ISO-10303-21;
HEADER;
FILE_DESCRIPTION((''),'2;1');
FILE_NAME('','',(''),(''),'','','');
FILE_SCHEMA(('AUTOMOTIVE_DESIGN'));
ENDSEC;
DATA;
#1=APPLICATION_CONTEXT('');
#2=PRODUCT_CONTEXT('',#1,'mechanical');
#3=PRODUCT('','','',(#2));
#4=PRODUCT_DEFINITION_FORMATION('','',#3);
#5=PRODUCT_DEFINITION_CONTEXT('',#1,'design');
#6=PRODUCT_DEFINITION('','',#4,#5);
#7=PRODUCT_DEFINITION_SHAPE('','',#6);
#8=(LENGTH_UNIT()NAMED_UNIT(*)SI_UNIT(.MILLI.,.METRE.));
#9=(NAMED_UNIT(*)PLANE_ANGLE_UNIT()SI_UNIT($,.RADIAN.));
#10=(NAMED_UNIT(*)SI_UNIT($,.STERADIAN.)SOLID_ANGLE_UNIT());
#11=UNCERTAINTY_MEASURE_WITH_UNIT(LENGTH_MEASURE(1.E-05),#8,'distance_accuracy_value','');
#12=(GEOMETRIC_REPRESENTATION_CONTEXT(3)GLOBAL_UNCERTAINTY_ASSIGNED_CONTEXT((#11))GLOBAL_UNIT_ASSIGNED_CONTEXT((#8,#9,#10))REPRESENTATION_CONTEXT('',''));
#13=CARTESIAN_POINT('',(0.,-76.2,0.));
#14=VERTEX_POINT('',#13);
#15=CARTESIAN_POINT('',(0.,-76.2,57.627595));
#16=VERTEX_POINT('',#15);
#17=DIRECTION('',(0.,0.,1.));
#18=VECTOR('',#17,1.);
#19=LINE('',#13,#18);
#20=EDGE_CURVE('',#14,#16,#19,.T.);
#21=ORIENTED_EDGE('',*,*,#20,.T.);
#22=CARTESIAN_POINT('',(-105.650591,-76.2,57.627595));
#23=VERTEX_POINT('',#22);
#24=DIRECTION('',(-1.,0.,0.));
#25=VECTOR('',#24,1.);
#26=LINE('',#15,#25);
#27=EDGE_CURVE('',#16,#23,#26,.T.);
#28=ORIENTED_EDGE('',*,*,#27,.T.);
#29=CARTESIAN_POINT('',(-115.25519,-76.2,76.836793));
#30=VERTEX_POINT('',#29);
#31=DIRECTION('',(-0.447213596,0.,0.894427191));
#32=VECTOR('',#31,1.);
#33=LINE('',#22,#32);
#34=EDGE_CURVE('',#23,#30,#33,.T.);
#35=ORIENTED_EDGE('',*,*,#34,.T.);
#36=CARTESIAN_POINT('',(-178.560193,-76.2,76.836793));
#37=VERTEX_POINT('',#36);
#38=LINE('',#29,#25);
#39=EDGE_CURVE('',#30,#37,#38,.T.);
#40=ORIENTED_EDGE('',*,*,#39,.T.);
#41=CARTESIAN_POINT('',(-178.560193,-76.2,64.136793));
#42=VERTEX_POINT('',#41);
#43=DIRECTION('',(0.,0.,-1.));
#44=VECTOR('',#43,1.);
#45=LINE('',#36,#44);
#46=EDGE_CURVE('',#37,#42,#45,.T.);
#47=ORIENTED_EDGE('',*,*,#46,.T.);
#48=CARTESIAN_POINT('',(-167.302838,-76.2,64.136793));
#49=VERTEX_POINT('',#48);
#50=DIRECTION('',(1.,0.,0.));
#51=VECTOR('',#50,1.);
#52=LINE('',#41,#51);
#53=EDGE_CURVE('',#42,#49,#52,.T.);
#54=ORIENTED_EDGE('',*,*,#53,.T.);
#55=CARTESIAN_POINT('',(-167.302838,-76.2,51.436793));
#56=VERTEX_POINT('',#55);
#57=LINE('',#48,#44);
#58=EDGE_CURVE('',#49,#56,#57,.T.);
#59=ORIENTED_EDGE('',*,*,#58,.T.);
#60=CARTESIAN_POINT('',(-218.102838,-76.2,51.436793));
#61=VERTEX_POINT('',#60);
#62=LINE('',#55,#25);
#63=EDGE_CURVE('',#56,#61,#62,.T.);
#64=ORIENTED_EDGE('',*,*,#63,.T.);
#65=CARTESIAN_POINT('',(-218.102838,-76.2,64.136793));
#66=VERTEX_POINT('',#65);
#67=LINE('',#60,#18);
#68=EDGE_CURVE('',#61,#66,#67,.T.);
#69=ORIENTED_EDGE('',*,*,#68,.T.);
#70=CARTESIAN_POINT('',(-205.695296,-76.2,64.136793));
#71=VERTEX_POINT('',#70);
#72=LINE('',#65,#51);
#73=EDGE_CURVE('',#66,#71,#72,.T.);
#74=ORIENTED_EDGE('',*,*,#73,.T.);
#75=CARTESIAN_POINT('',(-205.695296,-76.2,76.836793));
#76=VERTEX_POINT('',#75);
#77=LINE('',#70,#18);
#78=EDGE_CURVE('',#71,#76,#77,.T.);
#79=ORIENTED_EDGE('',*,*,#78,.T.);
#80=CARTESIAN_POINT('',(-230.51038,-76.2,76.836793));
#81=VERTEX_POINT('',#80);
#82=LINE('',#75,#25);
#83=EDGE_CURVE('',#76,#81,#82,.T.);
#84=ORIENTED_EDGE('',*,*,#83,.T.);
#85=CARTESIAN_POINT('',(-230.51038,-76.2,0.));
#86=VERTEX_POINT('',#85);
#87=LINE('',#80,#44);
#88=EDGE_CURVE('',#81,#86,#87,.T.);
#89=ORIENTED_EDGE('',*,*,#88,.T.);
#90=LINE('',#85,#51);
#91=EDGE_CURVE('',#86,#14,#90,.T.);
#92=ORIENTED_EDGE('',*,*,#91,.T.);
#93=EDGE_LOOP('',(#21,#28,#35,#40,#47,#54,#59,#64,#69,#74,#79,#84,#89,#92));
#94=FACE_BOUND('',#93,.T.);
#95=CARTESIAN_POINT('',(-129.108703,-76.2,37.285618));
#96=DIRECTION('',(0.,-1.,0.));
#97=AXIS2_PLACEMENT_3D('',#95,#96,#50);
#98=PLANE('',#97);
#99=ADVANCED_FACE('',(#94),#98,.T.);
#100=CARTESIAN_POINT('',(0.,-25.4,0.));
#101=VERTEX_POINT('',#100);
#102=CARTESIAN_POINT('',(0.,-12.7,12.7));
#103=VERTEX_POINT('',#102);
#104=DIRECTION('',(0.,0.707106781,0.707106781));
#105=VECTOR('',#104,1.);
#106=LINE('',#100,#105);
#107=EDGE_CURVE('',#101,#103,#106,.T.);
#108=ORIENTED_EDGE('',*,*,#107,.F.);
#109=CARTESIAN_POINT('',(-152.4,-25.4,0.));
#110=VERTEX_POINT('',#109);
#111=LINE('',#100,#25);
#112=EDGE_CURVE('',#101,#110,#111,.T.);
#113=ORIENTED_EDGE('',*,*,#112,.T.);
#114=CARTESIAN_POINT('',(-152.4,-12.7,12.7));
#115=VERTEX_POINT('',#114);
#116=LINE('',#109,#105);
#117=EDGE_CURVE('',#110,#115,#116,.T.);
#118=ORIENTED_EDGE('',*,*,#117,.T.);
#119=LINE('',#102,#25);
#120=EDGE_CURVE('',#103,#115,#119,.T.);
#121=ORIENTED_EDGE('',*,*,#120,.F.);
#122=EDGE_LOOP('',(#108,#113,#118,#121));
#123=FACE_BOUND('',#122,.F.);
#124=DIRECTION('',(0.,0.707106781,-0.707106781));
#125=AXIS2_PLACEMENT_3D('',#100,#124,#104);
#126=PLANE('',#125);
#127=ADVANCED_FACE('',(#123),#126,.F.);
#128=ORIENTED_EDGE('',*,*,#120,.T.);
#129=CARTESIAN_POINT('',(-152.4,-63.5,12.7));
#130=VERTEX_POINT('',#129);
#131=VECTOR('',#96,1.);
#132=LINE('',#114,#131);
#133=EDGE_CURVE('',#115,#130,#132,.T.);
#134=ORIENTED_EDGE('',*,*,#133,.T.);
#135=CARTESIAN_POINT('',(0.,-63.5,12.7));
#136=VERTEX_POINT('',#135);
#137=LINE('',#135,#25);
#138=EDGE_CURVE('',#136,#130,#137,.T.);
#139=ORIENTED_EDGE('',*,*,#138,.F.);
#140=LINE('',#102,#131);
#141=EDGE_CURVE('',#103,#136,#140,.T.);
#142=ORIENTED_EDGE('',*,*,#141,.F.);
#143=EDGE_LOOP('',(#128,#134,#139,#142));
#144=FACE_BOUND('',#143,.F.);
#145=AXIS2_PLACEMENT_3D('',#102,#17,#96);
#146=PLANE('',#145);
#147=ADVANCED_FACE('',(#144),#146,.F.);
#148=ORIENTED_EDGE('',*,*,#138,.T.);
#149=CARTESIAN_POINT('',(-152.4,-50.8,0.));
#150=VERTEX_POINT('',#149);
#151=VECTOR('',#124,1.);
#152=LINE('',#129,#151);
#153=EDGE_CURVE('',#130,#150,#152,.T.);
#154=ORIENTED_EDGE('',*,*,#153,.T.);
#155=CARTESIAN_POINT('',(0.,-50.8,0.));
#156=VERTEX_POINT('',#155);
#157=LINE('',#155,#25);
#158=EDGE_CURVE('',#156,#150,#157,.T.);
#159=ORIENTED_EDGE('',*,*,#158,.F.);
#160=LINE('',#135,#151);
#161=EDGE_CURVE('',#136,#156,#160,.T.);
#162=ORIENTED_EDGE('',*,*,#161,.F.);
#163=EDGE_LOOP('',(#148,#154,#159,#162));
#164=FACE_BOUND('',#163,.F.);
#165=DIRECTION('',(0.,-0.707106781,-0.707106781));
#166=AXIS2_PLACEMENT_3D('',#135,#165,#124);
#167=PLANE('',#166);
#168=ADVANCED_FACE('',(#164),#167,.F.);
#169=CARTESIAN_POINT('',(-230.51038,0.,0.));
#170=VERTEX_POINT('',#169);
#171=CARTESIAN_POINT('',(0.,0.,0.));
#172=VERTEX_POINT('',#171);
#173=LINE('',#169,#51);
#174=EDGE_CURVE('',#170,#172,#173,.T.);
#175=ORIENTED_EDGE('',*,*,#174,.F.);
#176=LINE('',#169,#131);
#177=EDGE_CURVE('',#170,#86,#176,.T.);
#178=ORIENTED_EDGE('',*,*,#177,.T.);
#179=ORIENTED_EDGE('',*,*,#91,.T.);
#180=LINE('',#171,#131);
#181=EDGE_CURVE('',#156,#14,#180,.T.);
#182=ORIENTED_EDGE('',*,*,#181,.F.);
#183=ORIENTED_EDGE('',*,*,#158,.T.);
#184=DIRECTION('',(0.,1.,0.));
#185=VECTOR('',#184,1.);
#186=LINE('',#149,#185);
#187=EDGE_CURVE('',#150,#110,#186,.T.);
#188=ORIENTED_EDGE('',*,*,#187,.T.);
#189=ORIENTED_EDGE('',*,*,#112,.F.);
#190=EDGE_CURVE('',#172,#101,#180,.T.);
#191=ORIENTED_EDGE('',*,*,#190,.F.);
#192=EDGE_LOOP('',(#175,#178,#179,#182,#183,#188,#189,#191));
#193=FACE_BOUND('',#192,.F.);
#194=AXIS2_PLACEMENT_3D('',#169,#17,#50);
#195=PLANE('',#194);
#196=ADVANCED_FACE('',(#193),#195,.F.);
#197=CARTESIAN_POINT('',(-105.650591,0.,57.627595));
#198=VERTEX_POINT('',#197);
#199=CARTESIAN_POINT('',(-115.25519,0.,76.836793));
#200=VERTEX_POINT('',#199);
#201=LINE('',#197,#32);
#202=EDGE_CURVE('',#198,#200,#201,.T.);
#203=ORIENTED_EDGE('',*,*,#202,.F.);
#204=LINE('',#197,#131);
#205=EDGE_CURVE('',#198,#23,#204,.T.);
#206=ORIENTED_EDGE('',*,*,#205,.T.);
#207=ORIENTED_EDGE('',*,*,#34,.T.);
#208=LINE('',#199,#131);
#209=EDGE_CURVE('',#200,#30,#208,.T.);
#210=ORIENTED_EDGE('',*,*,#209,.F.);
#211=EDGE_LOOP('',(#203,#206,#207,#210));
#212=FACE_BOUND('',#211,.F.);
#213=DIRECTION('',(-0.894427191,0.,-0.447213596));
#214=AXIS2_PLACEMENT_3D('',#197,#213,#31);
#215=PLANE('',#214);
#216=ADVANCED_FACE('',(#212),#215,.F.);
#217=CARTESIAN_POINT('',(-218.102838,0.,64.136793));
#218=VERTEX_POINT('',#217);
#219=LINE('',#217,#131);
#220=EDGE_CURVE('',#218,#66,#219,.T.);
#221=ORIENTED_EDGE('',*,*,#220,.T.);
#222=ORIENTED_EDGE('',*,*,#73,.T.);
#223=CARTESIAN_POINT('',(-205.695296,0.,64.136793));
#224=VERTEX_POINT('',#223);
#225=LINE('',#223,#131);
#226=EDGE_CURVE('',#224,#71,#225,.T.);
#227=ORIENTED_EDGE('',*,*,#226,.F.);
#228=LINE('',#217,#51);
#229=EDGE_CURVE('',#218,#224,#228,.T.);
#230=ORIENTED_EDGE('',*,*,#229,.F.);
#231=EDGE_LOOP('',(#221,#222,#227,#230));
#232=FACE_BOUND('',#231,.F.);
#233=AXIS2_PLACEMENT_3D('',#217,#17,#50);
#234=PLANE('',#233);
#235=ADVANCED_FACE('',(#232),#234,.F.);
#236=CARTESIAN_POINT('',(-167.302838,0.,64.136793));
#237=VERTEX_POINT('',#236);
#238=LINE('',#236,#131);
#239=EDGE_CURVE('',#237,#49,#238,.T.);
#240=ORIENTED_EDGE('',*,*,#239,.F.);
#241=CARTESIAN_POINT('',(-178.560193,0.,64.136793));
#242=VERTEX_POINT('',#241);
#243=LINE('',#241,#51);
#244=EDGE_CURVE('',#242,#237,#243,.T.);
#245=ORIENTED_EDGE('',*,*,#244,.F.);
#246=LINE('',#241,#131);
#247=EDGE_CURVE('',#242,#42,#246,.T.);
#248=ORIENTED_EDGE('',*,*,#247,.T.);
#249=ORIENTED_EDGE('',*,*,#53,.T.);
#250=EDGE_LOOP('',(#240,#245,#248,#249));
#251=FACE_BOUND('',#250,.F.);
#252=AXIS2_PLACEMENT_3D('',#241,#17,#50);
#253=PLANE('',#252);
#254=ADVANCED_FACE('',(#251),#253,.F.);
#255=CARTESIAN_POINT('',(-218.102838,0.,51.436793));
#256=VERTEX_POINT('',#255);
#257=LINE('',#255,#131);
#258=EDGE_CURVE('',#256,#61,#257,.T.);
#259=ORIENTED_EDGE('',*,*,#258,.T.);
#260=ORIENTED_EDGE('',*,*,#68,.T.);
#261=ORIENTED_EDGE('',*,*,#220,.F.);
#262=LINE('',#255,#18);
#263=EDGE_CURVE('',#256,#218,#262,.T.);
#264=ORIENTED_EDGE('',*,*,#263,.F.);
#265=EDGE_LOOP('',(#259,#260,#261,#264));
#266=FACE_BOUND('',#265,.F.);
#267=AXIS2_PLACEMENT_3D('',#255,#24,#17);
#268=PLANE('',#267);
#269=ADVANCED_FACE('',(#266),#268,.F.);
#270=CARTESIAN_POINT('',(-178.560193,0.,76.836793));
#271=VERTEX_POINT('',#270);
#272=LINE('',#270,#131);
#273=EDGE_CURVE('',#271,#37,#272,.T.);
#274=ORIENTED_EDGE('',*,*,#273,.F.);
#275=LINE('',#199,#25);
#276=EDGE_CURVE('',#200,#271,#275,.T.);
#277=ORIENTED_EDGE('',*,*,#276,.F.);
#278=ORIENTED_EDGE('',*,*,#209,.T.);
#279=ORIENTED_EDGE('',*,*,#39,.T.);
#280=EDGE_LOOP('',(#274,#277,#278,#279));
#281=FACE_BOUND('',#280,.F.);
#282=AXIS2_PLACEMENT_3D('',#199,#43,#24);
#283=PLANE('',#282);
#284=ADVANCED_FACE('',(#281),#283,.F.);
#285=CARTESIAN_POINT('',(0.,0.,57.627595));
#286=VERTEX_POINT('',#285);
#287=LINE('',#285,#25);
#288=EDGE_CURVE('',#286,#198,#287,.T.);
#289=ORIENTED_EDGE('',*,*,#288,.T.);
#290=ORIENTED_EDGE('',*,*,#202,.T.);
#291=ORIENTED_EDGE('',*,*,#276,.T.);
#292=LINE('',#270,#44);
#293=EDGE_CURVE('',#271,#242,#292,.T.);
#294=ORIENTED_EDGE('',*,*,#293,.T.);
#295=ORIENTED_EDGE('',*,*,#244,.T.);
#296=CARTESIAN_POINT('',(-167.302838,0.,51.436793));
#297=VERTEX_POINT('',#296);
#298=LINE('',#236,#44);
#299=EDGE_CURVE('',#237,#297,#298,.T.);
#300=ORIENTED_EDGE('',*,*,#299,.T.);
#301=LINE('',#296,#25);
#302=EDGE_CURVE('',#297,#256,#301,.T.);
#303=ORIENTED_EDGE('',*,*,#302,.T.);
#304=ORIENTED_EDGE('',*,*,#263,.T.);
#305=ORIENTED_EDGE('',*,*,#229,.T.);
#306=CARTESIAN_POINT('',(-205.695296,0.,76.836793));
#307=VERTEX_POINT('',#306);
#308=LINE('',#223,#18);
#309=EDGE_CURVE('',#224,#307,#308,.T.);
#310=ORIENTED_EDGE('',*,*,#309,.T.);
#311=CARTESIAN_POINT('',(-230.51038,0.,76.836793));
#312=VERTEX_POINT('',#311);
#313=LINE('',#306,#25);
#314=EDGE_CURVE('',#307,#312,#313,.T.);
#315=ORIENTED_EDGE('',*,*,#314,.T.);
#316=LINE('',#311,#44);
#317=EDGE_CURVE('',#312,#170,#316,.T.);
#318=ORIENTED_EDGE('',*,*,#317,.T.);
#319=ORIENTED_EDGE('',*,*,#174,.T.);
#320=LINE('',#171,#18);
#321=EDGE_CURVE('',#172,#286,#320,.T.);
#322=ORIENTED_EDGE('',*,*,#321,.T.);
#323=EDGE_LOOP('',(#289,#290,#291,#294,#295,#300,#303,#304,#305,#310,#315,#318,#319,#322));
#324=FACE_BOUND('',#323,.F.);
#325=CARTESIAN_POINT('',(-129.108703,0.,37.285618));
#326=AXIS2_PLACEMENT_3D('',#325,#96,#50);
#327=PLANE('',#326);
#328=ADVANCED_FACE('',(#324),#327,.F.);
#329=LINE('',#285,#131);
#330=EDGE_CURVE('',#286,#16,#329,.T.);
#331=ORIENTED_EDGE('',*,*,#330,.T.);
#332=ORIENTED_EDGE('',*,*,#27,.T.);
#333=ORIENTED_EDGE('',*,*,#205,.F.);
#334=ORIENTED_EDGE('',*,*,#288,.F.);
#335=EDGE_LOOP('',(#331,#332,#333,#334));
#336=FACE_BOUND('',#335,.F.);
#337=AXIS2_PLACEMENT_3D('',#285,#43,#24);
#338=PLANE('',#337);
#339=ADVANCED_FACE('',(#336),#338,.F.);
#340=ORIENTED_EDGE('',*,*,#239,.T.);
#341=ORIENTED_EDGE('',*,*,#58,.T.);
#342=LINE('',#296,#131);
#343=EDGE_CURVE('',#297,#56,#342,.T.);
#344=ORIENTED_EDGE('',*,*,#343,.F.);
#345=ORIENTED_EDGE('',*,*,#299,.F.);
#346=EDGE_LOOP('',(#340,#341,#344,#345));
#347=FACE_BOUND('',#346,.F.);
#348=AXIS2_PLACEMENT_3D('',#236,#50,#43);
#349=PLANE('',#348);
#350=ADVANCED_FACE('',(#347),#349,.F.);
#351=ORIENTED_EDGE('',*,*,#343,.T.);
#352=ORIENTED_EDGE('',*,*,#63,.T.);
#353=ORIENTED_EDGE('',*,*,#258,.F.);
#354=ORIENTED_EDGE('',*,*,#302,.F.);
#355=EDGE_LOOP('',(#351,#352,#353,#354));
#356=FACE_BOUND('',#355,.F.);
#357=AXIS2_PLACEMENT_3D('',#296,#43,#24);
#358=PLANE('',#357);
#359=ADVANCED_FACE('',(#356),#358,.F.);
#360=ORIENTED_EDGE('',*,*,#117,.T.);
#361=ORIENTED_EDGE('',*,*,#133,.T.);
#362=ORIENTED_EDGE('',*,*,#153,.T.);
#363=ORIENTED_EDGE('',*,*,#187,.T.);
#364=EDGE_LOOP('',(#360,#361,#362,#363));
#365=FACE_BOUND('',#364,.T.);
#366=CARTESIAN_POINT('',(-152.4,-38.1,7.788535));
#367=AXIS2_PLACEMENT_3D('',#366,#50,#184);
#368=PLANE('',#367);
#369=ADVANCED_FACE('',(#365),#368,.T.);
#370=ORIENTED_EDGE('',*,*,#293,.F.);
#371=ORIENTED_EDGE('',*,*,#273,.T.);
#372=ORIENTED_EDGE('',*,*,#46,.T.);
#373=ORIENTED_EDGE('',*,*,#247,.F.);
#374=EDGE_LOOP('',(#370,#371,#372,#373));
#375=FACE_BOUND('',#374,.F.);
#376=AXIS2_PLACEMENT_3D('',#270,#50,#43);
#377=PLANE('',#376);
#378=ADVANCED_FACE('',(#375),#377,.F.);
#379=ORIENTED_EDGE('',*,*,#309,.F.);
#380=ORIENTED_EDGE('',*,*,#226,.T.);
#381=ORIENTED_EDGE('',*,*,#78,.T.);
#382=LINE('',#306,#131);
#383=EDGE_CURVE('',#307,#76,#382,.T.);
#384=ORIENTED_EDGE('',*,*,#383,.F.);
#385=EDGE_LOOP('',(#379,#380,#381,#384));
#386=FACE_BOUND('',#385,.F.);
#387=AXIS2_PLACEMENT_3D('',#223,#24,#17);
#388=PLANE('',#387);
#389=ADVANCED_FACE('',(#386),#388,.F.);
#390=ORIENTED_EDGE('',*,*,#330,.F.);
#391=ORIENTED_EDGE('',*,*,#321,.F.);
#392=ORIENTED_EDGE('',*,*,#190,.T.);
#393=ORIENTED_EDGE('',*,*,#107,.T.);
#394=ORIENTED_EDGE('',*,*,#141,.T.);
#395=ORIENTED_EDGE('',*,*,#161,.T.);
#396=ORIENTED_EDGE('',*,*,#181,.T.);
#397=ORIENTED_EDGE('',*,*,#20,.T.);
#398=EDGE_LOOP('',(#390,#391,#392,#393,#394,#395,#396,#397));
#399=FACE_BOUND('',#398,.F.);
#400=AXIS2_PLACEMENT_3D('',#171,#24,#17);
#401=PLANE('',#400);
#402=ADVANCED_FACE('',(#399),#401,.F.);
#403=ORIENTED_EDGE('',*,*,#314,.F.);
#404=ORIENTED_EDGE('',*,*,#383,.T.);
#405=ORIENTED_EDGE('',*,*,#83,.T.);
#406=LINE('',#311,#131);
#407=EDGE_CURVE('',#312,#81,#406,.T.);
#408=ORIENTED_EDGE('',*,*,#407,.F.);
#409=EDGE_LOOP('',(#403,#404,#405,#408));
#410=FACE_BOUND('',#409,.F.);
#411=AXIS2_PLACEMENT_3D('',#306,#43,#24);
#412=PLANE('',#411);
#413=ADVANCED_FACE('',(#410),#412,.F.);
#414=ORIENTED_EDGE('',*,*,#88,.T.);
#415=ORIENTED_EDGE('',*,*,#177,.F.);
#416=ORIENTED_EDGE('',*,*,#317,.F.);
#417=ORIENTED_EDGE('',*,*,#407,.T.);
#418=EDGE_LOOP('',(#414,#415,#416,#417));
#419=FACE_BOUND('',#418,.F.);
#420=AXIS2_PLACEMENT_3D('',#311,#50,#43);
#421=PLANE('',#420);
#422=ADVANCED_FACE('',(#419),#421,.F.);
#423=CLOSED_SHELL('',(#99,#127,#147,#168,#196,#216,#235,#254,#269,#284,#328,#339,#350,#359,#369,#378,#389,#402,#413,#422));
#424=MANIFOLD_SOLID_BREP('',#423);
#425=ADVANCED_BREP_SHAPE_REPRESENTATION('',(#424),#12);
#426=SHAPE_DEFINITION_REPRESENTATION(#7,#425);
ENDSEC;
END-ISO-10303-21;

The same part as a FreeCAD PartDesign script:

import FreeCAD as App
import Part
import Sketcher

V = App.Vector
Q = App.Units.Quantity


def add_polygon(sketch, points):
    """Adds a closed chain of lines whose ends are joined by coincident constraints."""
    first, n = sketch.GeometryCount, len(points)
    for a, b in zip(points, points[1:] + points[:1]):
        sketch.addGeometry(Part.LineSegment(App.Vector(*a, 0), App.Vector(*b, 0)), False)
    for i in range(n):
        sketch.addConstraint(Sketcher.Constraint("Coincident", first + i, 2, first + (i + 1) % n, 1))

doc = App.newDocument("Part")
body = doc.addObject("PartDesign::Body", "Body")

# Sketch on XZ plane
sketch1 = doc.addObject("Sketcher::SketchObject", "Sketch")
body.addObject(sketch1)
sketch1.AttachmentSupport = (doc.XZ_Plane, [""])
sketch1.MapMode = "FlatFace"
add_polygon(sketch1, [(-231, 0), (0, 0), (0, 58), (-106, 58), (-115, 77), (-179, 77), (-179, 64), (-167, 64), (-167, 51), (-218, 51), (-218, 64), (-206, 64), (-206, 77), (-231, 77)])  # lines 0-13
sketch1.addConstraint(Sketcher.Constraint("Horizontal", 0))
sketch1.addConstraint(Sketcher.Constraint("Vertical", 1))
sketch1.addConstraint(Sketcher.Constraint("Horizontal", 2))
sketch1.addConstraint(Sketcher.Constraint("Horizontal", 4))
sketch1.addConstraint(Sketcher.Constraint("Vertical", 5))
sketch1.addConstraint(Sketcher.Constraint("Horizontal", 6))
sketch1.addConstraint(Sketcher.Constraint("Vertical", 7))
sketch1.addConstraint(Sketcher.Constraint("Horizontal", 8))
sketch1.addConstraint(Sketcher.Constraint("Vertical", 9))
sketch1.addConstraint(Sketcher.Constraint("Horizontal", 10))
sketch1.addConstraint(Sketcher.Constraint("Vertical", 11))
sketch1.addConstraint(Sketcher.Constraint("Horizontal", 12))
sketch1.addConstraint(Sketcher.Constraint("Vertical", 13))
sketch1.addConstraint(Sketcher.Constraint("Coincident", 0, 2, -1, 1))
sketch1.addConstraint(Sketcher.Constraint("Horizontal", 6, 2, 9, 2))
sketch1.addConstraint(Sketcher.Constraint("Horizontal", 4, 2, 11, 2))
sketch1.addConstraint(Sketcher.Constraint("Equal", 5, 7))
sketch1.addConstraint(Sketcher.Constraint("DistanceX", 8, 2, 8, 1, Q("2 in")))
sketch1.addConstraint(Sketcher.Constraint("DistanceY", 5, 2, 5, 1, Q("0.5 in")))
sketch1.addConstraint(Sketcher.Constraint("DistanceX", 0, 1, 0, 2, 230.51038))
sketch1.addConstraint(Sketcher.Constraint("DistanceX", 2, 2, 2, 1, 105.650591))
sketch1.addConstraint(Sketcher.Constraint("DistanceX", 10, 1, 10, 2, 12.407542))
sketch1.addConstraint(Sketcher.Constraint("DistanceX", 3, 2, 2, 2, 9.604599))
sketch1.addConstraint(Sketcher.Constraint("DistanceY", 2, 2, 3, 2, 19.209198))
sketch1.addConstraint(Sketcher.Constraint("DistanceX", 4, 2, 2, 2, 72.909602))
sketch1.addConstraint(Sketcher.Constraint("DistanceX", 6, 1, 6, 2, 11.257355))
sketch1.addConstraint(Sketcher.Constraint("DistanceY", 1, 1, 1, 2, 57.627595))
pad1 = doc.addObject("PartDesign::Pad", "Pad")
body.addObject(pad1)
pad1.Profile = sketch1
pad1.Length = Q("3 in")

# Sketch on YZ plane
sketch2 = doc.addObject("Sketcher::SketchObject", "Sketch001")
body.addObject(sketch2)
sketch2.AttachmentSupport = (doc.YZ_Plane, [""])
sketch2.MapMode = "FlatFace"
add_polygon(sketch2, [(-13, 13), (-64, 13), (-51, 0), (-25, 0)])  # lines 0-3
sketch2.addConstraint(Sketcher.Constraint("Horizontal", 0))
sketch2.addConstraint(Sketcher.Constraint("Horizontal", 2))
sketch2.addConstraint(Sketcher.Constraint("PointOnObject", 1, 2, -1))
sketch2.addConstraint(Sketcher.Constraint("Perpendicular", 1, 3))
sketch2.addConstraint(Sketcher.Constraint("Equal", 1, 3))
sketch2.addConstraint(Sketcher.Constraint("DistanceX", 0, 2, 0, 1, Q("2 in")))
sketch2.addConstraint(Sketcher.Constraint("DistanceX", 2, 1, 2, 2, Q("1 in")))
sketch2.addConstraint(Sketcher.Constraint("DistanceX", 1, 2, -1, 1, Q("2 in")))
pocket1 = doc.addObject("PartDesign::Pocket", "Pocket")
body.addObject(pocket1)
pocket1.Profile = sketch2
pocket1.Length = Q("6 in")

doc.recompute()
